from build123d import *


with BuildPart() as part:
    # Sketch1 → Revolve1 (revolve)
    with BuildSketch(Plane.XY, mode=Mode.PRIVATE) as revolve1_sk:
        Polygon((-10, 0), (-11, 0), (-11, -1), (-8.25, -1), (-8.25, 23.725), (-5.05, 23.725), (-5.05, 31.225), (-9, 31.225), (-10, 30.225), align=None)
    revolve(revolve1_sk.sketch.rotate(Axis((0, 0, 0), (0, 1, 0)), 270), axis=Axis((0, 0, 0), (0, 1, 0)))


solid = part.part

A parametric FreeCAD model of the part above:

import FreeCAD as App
import Part
import Sketcher

V = App.Vector
Q = App.Units.Quantity


def add_polygon(sketch, points):
    """Adds a closed chain of lines whose ends are joined by coincident constraints."""
    first, n = sketch.GeometryCount, len(points)
    for a, b in zip(points, points[1:] + points[:1]):
        sketch.addGeometry(Part.LineSegment(App.Vector(*a, 0), App.Vector(*b, 0)), False)
    for i in range(n):
        sketch.addConstraint(Sketcher.Constraint("Coincident", first + i, 2, first + (i + 1) % n, 1))

doc = App.newDocument("Part")
body = doc.addObject("PartDesign::Body", "Body")

# Sketch on XY plane
sketch1 = body.newObject("Sketcher::SketchObject", "Sketch")
sketch1.AttachmentSupport = (doc.getObject("XY_Plane"), [""])
sketch1.MapMode = "FlatFace"
add_polygon(sketch1, [(-10, 0), (-11, 0), (-11, -1), (-8.25, -1), (-8.25, 23.725), (-5.05, 23.725), (-5.05, 31.225), (-9, 31.225), (-10, 30.225)])  # lines 0-8
sketch1.addConstraint([
    Sketcher.Constraint("Horizontal", 0),
    Sketcher.Constraint("Vertical", 1),
    Sketcher.Constraint("Horizontal", 2),
    Sketcher.Constraint("Vertical", 3),
    Sketcher.Constraint("Horizontal", 4),
    Sketcher.Constraint("Vertical", 5),
    Sketcher.Constraint("Horizontal", 6),
    Sketcher.Constraint("Vertical", 8),
    Sketcher.Constraint("PointOnObject", 0, 2, -1),
    Sketcher.Constraint("Equal", 0, 1),
    Sketcher.Constraint("DistanceX", 0, 2, 0, 1, Q("1 mm")),
    Sketcher.Constraint("Angle", 7, Q("-135 deg")),
    Sketcher.Constraint("DistanceX", 4, 1, 4, 2, Q("3.2 mm")),
    Sketcher.Constraint("DistanceY", 5, 1, 5, 2, Q("7.5 mm")),
    Sketcher.Constraint("DistanceX", 0, 2, -1, 1, Q("11 mm")),
    Sketcher.Constraint("DistanceX", 6, 2, -1, 1, Q("9 mm")),
    Sketcher.Constraint("DistanceX", 2, 1, 2, 2, Q("2.75 mm")),
    Sketcher.Constraint("DistanceY", 3, 1, 3, 2, Q("24.725 mm")),
])
revolution = body.newObject("PartDesign::Revolution", "Revolution")
revolution.Profile = sketch1
revolution.ReferenceAxis = (sketch1, ["V_Axis"])
revolution.Angle = 360

doc.recompute()
